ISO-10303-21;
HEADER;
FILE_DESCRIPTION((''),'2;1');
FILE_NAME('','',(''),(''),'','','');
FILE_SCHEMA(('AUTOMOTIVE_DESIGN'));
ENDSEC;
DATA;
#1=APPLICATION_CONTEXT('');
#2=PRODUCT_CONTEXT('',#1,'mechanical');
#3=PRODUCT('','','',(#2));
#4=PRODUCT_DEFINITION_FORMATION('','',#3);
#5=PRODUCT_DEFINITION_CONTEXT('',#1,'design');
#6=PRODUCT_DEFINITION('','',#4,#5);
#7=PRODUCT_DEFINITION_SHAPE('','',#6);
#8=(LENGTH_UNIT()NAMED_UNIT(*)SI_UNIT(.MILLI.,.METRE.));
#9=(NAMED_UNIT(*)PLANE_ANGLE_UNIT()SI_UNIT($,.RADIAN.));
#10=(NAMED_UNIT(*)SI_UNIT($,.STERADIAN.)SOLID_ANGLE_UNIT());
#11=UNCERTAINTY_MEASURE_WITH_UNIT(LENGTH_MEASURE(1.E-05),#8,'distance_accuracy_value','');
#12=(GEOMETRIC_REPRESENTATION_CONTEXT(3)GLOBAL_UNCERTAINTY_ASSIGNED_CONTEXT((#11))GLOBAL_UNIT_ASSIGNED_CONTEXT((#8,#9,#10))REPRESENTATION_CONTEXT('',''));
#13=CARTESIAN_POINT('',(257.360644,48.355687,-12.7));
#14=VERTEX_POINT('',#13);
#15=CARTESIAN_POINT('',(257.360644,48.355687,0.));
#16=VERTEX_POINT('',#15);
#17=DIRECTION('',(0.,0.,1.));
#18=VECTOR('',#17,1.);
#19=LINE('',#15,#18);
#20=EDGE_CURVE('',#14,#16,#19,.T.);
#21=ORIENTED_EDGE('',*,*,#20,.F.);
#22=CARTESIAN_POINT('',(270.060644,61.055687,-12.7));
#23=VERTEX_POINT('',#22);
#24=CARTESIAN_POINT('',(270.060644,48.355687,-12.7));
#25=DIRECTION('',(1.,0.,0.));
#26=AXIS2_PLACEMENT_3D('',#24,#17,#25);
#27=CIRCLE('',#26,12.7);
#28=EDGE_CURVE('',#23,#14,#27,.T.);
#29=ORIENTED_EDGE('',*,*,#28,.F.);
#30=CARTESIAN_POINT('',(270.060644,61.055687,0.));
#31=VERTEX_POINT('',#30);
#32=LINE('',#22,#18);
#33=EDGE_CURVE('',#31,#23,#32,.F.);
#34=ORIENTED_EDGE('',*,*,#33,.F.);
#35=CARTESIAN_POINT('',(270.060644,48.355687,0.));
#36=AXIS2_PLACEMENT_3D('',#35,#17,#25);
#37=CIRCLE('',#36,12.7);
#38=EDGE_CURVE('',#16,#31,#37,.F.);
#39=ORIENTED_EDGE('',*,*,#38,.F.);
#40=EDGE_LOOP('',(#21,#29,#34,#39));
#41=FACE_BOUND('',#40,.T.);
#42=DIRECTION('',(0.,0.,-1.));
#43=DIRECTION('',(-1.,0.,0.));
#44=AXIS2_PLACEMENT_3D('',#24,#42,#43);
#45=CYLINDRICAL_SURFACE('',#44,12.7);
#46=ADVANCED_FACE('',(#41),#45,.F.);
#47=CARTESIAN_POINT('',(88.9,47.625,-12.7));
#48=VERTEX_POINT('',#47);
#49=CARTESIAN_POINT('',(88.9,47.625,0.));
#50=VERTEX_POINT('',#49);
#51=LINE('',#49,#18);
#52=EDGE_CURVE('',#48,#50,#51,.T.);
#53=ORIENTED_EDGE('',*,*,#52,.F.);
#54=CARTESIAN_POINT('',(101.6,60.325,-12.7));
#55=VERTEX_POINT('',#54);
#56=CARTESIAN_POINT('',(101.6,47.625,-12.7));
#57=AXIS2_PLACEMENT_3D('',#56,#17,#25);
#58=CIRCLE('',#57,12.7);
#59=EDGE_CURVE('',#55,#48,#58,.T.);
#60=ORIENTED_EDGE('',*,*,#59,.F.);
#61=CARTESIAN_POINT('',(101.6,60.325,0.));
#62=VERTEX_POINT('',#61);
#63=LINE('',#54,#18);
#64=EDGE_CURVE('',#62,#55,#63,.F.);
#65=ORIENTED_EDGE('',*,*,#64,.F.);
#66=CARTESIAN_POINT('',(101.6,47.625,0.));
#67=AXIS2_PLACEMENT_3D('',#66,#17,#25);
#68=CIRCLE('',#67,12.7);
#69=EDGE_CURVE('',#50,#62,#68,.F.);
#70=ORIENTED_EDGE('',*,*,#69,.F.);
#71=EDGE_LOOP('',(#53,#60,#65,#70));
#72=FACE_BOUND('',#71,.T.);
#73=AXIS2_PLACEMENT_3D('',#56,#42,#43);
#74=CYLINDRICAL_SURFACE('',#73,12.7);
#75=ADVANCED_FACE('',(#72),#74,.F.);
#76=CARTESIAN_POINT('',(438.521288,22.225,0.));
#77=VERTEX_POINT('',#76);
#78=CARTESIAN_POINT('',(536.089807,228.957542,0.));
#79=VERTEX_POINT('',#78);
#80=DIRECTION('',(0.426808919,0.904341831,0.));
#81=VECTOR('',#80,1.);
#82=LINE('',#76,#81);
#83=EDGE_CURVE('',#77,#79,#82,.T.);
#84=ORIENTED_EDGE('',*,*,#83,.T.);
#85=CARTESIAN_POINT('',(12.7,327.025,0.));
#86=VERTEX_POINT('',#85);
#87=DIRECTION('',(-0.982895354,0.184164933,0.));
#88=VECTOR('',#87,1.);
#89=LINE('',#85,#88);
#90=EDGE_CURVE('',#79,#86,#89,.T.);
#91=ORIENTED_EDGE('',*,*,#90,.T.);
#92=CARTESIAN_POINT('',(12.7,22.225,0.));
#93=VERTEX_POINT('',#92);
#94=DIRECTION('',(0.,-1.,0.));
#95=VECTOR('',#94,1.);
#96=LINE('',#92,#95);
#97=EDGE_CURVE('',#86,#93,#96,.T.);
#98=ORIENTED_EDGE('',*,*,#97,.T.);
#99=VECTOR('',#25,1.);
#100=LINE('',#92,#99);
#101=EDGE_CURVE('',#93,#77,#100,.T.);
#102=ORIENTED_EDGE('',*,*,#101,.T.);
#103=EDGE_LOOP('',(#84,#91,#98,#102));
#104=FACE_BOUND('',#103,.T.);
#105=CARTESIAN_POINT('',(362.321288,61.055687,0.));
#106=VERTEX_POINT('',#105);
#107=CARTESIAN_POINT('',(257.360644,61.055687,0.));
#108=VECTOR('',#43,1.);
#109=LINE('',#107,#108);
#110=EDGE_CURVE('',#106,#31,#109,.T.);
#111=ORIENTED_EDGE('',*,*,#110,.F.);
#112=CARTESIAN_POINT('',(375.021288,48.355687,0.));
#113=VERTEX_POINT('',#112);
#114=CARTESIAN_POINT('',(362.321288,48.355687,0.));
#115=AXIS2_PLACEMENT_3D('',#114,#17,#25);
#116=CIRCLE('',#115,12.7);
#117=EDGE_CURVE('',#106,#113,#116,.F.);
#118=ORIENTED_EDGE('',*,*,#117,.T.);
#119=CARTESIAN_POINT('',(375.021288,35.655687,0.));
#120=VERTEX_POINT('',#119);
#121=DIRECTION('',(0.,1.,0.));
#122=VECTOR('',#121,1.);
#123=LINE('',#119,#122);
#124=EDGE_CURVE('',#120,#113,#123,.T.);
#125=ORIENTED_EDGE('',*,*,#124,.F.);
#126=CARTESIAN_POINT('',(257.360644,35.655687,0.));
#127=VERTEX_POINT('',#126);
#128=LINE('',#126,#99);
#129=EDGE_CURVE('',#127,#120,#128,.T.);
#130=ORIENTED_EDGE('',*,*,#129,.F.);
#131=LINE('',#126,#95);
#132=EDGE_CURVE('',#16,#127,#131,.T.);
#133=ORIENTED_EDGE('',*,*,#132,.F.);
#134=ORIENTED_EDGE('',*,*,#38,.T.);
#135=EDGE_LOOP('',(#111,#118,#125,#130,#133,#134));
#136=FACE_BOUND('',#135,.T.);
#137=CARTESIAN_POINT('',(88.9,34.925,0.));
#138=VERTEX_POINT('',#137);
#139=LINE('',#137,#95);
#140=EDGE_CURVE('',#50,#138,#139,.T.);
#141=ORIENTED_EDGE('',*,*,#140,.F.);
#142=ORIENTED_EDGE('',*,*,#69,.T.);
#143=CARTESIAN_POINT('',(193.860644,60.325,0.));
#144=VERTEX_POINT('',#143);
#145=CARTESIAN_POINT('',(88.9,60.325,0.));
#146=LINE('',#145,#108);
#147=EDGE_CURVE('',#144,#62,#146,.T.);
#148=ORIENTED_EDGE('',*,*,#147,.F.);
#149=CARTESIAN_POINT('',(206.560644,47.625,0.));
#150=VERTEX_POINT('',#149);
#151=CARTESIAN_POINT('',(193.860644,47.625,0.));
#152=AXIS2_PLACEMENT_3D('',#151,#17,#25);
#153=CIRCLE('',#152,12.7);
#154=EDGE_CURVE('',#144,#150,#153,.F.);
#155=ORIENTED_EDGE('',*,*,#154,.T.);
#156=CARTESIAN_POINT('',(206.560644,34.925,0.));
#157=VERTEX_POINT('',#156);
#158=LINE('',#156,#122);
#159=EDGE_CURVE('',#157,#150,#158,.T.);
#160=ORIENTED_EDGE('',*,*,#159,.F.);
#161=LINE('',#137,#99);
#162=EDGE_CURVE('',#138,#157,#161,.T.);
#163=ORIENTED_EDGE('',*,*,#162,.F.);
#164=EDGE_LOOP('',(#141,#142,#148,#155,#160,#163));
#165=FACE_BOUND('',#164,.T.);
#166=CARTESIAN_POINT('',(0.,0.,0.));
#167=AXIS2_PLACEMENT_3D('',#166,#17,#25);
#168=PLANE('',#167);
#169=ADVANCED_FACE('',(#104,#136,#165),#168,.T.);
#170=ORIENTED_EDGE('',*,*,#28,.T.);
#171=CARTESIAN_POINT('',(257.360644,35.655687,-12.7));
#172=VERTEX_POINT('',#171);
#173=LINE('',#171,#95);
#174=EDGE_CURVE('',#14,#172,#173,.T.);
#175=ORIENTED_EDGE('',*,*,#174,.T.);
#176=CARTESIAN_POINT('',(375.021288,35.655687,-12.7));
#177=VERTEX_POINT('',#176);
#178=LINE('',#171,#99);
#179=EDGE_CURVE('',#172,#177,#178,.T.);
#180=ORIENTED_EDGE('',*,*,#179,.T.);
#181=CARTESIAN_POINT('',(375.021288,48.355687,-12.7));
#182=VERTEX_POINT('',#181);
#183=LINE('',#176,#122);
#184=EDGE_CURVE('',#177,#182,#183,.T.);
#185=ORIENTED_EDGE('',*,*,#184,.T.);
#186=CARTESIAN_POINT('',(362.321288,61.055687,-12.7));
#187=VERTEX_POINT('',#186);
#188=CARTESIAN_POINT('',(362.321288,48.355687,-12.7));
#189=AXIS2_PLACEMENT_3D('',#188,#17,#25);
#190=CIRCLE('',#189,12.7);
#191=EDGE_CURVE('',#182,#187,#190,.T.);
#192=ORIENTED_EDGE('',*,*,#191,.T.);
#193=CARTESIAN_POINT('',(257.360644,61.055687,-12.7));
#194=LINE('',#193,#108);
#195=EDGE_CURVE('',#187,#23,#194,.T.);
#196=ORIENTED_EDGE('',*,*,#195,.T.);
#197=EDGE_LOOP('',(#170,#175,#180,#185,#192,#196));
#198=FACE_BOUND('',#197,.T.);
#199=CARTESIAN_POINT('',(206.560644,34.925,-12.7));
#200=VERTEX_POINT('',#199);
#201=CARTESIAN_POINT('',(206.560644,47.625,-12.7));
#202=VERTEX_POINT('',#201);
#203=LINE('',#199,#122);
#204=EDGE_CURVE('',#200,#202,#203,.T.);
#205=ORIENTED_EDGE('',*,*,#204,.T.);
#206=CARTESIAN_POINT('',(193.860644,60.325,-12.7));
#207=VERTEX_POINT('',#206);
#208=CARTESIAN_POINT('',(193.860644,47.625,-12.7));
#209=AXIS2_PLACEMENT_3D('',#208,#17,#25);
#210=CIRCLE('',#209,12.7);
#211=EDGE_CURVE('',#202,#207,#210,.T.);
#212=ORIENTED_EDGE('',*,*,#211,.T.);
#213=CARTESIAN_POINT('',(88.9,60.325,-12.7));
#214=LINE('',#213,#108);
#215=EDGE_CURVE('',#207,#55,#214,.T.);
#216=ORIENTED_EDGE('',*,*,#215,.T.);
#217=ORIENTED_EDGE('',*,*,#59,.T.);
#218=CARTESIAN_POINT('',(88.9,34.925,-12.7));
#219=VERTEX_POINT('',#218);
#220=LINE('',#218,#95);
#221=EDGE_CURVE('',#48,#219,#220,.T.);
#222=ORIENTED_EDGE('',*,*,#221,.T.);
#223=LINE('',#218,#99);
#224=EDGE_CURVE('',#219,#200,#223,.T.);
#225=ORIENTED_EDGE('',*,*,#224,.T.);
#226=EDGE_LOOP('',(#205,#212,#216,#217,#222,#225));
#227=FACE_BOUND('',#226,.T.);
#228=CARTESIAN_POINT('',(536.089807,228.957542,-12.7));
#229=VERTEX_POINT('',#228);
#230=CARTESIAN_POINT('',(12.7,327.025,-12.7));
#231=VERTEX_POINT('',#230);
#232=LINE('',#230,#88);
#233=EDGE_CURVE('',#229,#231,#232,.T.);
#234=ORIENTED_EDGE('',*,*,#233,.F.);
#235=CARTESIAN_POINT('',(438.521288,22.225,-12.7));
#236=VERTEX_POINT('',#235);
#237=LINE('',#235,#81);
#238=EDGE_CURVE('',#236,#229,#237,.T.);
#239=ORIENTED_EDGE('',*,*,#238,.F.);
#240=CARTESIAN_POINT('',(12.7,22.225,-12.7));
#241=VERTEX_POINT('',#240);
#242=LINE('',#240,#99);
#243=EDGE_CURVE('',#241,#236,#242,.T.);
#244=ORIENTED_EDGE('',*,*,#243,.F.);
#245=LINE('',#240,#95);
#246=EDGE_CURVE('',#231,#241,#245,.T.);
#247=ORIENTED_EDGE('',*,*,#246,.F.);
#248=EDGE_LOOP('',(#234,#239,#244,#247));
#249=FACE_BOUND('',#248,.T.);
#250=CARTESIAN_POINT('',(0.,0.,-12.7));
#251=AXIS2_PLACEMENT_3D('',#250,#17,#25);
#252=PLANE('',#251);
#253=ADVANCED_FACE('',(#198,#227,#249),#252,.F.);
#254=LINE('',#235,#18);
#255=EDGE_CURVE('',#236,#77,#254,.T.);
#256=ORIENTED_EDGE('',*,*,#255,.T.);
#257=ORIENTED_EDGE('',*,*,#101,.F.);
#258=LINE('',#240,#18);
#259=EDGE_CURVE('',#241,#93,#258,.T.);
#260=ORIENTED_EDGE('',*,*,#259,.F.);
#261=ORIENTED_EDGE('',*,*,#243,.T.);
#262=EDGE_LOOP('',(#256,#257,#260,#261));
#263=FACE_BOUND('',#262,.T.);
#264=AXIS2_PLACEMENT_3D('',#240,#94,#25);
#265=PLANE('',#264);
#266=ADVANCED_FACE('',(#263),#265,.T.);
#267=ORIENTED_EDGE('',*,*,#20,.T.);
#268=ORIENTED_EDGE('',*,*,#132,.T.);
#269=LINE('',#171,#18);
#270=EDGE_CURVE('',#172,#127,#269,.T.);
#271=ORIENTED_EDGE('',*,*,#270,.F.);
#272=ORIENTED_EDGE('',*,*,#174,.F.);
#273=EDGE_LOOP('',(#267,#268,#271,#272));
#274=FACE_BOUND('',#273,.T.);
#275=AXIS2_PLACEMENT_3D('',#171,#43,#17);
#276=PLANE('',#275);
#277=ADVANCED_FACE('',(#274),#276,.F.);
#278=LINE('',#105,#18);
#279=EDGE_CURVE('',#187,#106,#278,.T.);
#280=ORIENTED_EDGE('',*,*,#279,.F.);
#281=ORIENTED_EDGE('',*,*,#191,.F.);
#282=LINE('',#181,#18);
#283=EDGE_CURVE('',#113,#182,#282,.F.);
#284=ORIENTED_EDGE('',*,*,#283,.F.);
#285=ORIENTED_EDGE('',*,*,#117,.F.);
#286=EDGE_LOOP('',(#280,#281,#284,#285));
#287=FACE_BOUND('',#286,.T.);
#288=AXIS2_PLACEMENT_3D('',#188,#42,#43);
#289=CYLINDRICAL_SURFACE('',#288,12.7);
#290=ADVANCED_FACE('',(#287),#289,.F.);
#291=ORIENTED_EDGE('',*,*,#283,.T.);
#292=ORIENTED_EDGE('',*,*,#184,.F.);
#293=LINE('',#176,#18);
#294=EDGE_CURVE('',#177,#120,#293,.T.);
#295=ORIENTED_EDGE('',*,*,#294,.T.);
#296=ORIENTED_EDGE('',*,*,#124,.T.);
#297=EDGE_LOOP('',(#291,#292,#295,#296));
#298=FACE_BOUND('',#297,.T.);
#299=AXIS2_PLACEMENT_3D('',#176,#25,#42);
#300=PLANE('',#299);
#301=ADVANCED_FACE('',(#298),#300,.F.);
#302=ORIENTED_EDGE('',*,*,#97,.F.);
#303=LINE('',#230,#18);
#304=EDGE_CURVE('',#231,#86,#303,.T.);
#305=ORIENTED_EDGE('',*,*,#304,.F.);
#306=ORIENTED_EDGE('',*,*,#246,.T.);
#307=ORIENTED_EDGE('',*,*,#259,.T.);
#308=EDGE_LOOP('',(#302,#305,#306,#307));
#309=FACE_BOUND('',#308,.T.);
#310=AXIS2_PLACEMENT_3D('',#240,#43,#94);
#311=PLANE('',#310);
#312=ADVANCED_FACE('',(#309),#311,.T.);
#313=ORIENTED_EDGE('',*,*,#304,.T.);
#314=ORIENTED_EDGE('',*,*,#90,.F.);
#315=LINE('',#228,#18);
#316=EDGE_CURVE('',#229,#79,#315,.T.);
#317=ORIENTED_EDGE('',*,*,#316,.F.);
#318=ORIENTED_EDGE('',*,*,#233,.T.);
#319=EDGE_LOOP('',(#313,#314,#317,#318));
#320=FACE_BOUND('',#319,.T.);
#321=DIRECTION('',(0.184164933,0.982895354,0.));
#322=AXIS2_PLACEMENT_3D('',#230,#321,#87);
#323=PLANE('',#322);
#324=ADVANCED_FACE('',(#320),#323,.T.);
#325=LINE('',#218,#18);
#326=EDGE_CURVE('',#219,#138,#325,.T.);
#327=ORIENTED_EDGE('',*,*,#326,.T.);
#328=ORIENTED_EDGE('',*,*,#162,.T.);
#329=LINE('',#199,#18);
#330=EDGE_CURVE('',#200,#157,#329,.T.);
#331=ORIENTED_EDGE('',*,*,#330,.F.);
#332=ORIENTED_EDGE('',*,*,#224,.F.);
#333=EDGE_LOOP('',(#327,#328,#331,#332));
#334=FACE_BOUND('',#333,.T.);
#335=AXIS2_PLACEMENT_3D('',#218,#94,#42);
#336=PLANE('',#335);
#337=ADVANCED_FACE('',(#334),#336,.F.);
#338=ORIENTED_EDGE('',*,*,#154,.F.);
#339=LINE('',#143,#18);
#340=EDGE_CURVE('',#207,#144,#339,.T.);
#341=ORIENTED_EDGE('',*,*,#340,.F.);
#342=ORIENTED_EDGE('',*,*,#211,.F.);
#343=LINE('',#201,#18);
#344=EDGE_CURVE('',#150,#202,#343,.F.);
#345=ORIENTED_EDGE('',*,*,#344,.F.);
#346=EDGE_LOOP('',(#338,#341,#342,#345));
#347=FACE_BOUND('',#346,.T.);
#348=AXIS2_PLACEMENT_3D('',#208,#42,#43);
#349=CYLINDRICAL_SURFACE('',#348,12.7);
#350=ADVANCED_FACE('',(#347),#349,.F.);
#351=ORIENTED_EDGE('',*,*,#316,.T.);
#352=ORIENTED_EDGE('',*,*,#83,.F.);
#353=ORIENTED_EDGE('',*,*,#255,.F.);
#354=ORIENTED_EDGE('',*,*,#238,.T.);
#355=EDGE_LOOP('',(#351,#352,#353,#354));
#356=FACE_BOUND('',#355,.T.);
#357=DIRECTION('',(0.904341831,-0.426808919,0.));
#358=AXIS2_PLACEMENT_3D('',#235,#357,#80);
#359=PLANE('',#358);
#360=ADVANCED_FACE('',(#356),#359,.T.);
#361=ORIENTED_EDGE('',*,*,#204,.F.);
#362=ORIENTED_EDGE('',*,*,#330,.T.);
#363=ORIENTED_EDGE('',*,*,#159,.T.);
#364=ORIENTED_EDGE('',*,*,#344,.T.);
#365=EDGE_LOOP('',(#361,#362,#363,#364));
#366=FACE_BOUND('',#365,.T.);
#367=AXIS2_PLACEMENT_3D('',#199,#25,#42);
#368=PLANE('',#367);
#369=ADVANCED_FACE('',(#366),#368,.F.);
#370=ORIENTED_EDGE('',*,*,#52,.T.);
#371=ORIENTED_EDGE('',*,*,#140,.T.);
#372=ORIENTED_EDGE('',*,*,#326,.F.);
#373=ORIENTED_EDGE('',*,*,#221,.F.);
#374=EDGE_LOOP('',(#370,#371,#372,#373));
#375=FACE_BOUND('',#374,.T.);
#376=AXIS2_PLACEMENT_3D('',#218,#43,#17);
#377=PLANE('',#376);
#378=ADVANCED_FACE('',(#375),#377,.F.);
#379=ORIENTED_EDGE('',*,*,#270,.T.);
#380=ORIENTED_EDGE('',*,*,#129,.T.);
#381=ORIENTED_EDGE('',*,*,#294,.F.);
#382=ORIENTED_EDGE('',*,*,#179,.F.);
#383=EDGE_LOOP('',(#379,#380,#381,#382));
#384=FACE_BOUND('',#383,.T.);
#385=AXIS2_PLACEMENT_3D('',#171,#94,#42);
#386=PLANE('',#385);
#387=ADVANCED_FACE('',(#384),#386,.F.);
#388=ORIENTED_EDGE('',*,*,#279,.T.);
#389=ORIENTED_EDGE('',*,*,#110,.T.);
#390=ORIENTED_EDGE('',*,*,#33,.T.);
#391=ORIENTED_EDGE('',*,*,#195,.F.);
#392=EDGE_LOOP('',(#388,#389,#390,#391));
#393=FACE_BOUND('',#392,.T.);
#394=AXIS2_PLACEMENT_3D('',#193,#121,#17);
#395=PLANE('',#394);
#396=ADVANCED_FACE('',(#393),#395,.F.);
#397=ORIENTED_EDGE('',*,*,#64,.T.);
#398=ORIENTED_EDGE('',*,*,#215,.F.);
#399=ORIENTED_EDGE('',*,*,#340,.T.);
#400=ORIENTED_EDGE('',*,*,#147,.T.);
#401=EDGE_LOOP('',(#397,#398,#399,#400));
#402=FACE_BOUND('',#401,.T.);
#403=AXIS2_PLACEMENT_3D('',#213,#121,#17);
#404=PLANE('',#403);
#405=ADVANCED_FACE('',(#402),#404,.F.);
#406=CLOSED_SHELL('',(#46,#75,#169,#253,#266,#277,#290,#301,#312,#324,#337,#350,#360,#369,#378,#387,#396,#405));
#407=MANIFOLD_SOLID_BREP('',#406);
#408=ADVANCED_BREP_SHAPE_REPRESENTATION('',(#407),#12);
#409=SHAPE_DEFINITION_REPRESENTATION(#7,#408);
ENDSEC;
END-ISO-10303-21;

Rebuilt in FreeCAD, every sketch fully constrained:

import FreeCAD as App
import Part
import Sketcher
Q = App.Units.Quantity


def edges_at(feature, points):
    """Names of the edges that pass closest to the given points."""
    edges = feature.Shape.Edges
    near = lambda p: min(range(len(edges)), key=lambda i: edges[i].distToShape(Part.Vertex(*p))[0])
    return sorted({f"Edge{near(p) + 1}" for p in points})

doc = App.newDocument("Part")
body = doc.addObject("PartDesign::Body", "Body")

# Sketch on XY plane
sketch1 = body.newObject("Sketcher::SketchObject", "Sketch")
sketch1.AttachmentSupport = (doc.getObject("XY_Plane"), [""])
sketch1.MapMode = "FlatFace"
sketch1.addGeometry(Part.LineSegment(App.Vector(12.7, 327.025, 0), App.Vector(12.7, 22.225, 0)), False)
sketch1.addGeometry(Part.LineSegment(App.Vector(12.7, 22.225, 0), App.Vector(438.521288, 22.225, 0)), False)
sketch1.addGeometry(Part.LineSegment(App.Vector(438.521288, 22.225, 0), App.Vector(536.089807, 228.957542, 0)), False)
sketch1.addGeometry(Part.LineSegment(App.Vector(536.089807, 228.957542, 0), App.Vector(12.7, 327.025, 0)), False)
sketch1.addConstraint(Sketcher.Constraint("Coincident", 0, 2, 1, 1))
sketch1.addConstraint(Sketcher.Constraint("Coincident", 1, 2, 2, 1))
sketch1.addConstraint(Sketcher.Constraint("Coincident", 2, 2, 3, 1))
sketch1.addConstraint(Sketcher.Constraint("Coincident", 3, 2, 0, 1))
sketch1.addConstraint(Sketcher.Constraint("Vertical", 0))
sketch1.addConstraint(Sketcher.Constraint("Horizontal", 1))
sketch1.addConstraint(Sketcher.Constraint("DistanceY", 0, 2, 0, 1, Q("12 in")))
sketch1.addConstraint(Sketcher.Constraint("Distance", 2, Q("9 in")))
sketch1.addConstraint(Sketcher.Constraint("DistanceX", -1, 1, 0, 2, Q("0.5 in")))
sketch1.addConstraint(Sketcher.Constraint("DistanceY", -1, 1, 0, 2, Q("0.875 in")))
sketch1.addConstraint(Sketcher.Constraint("DistanceX", 1, 1, 1, 2, 425.821288))
sketch1.addConstraint(Sketcher.Constraint("DistanceX", 1, 2, 2, 2, 97.568519))
pad1 = body.newObject("PartDesign::Pad", "Pad")
pad1.Profile = sketch1
pad1.Length = Q("0.5 in")
pad1.Reversed = True

# Sketch on XY plane
sketch2 = body.newObject("Sketcher::SketchObject", "Sketch001")
sketch2.AttachmentSupport = (doc.getObject("XY_Plane"), [""])
sketch2.MapMode = "FlatFace"
sketch2.addGeometry(Part.LineSegment(App.Vector(88.9, 60.325, 0), App.Vector(88.9, 34.925, 0)), False)
sketch2.addGeometry(Part.LineSegment(App.Vector(88.9, 34.925, 0), App.Vector(206.560644, 34.925, 0)), False)
sketch2.addGeometry(Part.LineSegment(App.Vector(206.560644, 34.925, 0), App.Vector(206.560644, 60.325, 0)), False)
sketch2.addGeometry(Part.LineSegment(App.Vector(206.560644, 60.325, 0), App.Vector(88.9, 60.325, 0)), False)
sketch2.addGeometry(Part.LineSegment(App.Vector(257.360644, 61.055687, 0), App.Vector(257.360644, 35.655687, 0)), False)
sketch2.addGeometry(Part.LineSegment(App.Vector(257.360644, 35.655687, 0), App.Vector(375.021288, 35.655687, 0)), False)
sketch2.addGeometry(Part.LineSegment(App.Vector(375.021288, 35.655687, 0), App.Vector(375.021288, 61.055687, 0)), False)
sketch2.addGeometry(Part.LineSegment(App.Vector(375.021288, 61.055687, 0), App.Vector(257.360644, 61.055687, 0)), False)
sketch2.addConstraint(Sketcher.Constraint("Coincident", 0, 2, 1, 1))
sketch2.addConstraint(Sketcher.Constraint("Coincident", 1, 2, 2, 1))
sketch2.addConstraint(Sketcher.Constraint("Coincident", 2, 2, 3, 1))
sketch2.addConstraint(Sketcher.Constraint("Coincident", 3, 2, 0, 1))
sketch2.addConstraint(Sketcher.Constraint("Coincident", 4, 2, 5, 1))
sketch2.addConstraint(Sketcher.Constraint("Coincident", 5, 2, 6, 1))
sketch2.addConstraint(Sketcher.Constraint("Coincident", 6, 2, 7, 1))
sketch2.addConstraint(Sketcher.Constraint("Coincident", 7, 2, 4, 1))
sketch2.addConstraint(Sketcher.Constraint("Vertical", 0))
sketch2.addConstraint(Sketcher.Constraint("Horizontal", 1))
sketch2.addConstraint(Sketcher.Constraint("Vertical", 2))
sketch2.addConstraint(Sketcher.Constraint("Horizontal", 3))
sketch2.addConstraint(Sketcher.Constraint("Vertical", 4))
sketch2.addConstraint(Sketcher.Constraint("Horizontal", 5))
sketch2.addConstraint(Sketcher.Constraint("Vertical", 6))
sketch2.addConstraint(Sketcher.Constraint("Horizontal", 7))
sketch2.addConstraint(Sketcher.Constraint("Equal", 3, 5))
sketch2.addConstraint(Sketcher.Constraint("Equal", 2, 4))
sketch2.addConstraint(Sketcher.Constraint("DistanceY", 0, 2, 0, 1, Q("1 in")))
sketch2.addConstraint(Sketcher.Constraint("DistanceX", 1, 2, 4, 2, Q("2 in")))
sketch2.addConstraint(Sketcher.Constraint("DistanceX", -1, 1, 0, 2, Q("3.5 in")))
sketch2.addConstraint(Sketcher.Constraint("DistanceY", -1, 1, 0, 2, Q("1.375 in")))
sketch2.addConstraint(Sketcher.Constraint("DistanceX", 1, 1, 1, 2, 117.660644))
sketch2.addConstraint(Sketcher.Constraint("DistanceY", -1, 1, 4, 2, 35.655687))
pocket1 = body.newObject("PartDesign::Pocket", "Pocket")
pocket1.Profile = sketch2
pocket1.Type = "ThroughAll"
doc.recompute()

fillet = body.newObject("PartDesign::Fillet", "Fillet")
fillet.Base = (pocket1, edges_at(pocket1, [
    (88.9, 60.325, -6.35),
    (206.561, 60.325, -6.35),
    (257.361, 61.056, -6.35),
    (375.021, 61.056, -6.35),
]))
fillet.Radius = Q("0.5 in")

doc.recompute()
